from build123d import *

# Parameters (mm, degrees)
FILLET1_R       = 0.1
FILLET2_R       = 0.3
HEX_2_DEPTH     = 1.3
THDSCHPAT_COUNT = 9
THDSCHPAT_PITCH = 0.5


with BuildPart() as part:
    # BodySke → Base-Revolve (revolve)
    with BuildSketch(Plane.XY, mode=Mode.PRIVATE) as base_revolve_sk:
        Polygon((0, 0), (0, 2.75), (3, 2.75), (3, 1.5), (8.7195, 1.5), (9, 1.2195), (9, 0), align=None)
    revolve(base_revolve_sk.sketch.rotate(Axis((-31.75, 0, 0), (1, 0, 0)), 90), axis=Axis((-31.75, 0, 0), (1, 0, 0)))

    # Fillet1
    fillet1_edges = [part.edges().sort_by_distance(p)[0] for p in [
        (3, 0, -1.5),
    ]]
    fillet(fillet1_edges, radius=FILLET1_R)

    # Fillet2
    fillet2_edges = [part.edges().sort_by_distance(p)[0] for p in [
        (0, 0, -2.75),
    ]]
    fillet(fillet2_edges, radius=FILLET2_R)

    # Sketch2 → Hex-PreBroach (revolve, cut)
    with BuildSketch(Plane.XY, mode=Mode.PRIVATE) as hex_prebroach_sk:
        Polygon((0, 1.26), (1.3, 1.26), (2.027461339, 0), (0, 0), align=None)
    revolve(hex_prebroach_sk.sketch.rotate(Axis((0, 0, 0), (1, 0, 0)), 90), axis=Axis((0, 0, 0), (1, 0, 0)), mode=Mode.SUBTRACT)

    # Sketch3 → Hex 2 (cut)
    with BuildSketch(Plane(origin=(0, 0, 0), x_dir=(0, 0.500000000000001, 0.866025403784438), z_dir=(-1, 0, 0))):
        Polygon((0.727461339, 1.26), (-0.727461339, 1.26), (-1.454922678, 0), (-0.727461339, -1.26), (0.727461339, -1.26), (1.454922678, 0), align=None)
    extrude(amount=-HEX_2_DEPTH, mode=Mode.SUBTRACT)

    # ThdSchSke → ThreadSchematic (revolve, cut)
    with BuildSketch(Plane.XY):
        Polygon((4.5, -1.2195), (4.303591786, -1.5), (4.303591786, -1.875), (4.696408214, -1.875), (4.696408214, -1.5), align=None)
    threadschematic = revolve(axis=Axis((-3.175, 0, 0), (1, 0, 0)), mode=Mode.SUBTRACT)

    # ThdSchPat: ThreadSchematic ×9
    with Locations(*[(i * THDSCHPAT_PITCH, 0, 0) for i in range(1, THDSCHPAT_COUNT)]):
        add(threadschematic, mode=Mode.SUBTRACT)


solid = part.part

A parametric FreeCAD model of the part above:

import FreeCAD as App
import Part
import Sketcher
Q = App.Units.Quantity


def edges_at(feature, points):
    """Names of the edges that pass closest to the given points."""
    edges = feature.Shape.Edges
    near = lambda p: min(range(len(edges)), key=lambda i: edges[i].distToShape(Part.Vertex(*p))[0])
    return sorted({f"Edge{near(p) + 1}" for p in points})

doc = App.newDocument("Part")
body = doc.addObject("PartDesign::Body", "Body")

sketch1 = body.newObject("Sketcher::SketchObject", "Sketch")
sketch1.AttachmentSupport = (doc.getObject("XY_Plane"), [""])
sketch1.MapMode = "FlatFace"
sketch1.addGeometry([
    Part.LineSegment(App.Vector(0, 2.75, 0), App.Vector(0, 0, 0)),
    Part.LineSegment(App.Vector(0, 0, 0), App.Vector(9, 0, 0)),
    Part.LineSegment(App.Vector(9, 0, 0), App.Vector(9, 1.2195, 0)),
    Part.LineSegment(App.Vector(9, 1.2195, 0), App.Vector(8.7195, 1.5, 0)),
    Part.LineSegment(App.Vector(8.7195, 1.5, 0), App.Vector(3, 1.5, 0)),
    Part.LineSegment(App.Vector(3, 1.5, 0), App.Vector(3, 2.75, 0)),
    Part.LineSegment(App.Vector(3, 2.75, 0), App.Vector(0, 2.75, 0)),
], False)
sketch1.addConstraint([
    Sketcher.Constraint("Coincident", 0, 2, 1, 1),
    Sketcher.Constraint("Coincident", 1, 2, 2, 1),
    Sketcher.Constraint("Coincident", 2, 2, 3, 1),
    Sketcher.Constraint("Coincident", 3, 2, 4, 1),
    Sketcher.Constraint("Coincident", 4, 2, 5, 1),
    Sketcher.Constraint("Coincident", 5, 2, 6, 1),
    Sketcher.Constraint("Coincident", 6, 2, 0, 1),
    Sketcher.Constraint("Vertical", 0),
    Sketcher.Constraint("Horizontal", 1),
    Sketcher.Constraint("Vertical", 2),
    Sketcher.Constraint("Horizontal", 4),
    Sketcher.Constraint("Vertical", 5),
    Sketcher.Constraint("Horizontal", 6),
    Sketcher.Constraint("Coincident", 0, 2, -1, 1),
    Sketcher.Constraint("DistanceX", 1, 1, 1, 2, Q("9 mm")),
    Sketcher.Constraint("DistanceX", 6, 2, 6, 1, Q("3 mm")),
    Sketcher.Constraint("Angle", 3, Q("135 deg")),
    Sketcher.Constraint("DistanceY", 0, 2, 0, 1, Q("2.75 mm")),
    Sketcher.Constraint("DistanceY", 5, 1, 5, 2, Q("1.25 mm")),
    Sketcher.Constraint("DistanceX", 4, 2, 4, 1, Q("5.7195 mm")),
])
revolution = body.newObject("PartDesign::Revolution", "Revolution")
revolution.Profile = sketch1
revolution.ReferenceAxis = (sketch1, ["H_Axis"])
revolution.Angle = 360
doc.recompute()

fillet = body.newObject("PartDesign::Fillet", "Fillet")
fillet.Base = (revolution, edges_at(revolution, [(3, 0, -1.5)]))
fillet.Radius = 0.1
doc.recompute()

fillet2 = body.newObject("PartDesign::Fillet", "Fillet001")
fillet2.Base = (fillet, edges_at(fillet, [(0, 0, -2.75)]))
fillet2.Radius = 0.3

sketch2 = body.newObject("Sketcher::SketchObject", "Sketch001")
sketch2.AttachmentSupport = (doc.getObject("XY_Plane"), [""])
sketch2.MapMode = "FlatFace"
sketch2.addGeometry([
    Part.LineSegment(App.Vector(1.3, 1.26, 0), App.Vector(0, 1.26, 0)),
    Part.LineSegment(App.Vector(0, 1.26, 0), App.Vector(0, 0, 0)),
    Part.LineSegment(App.Vector(0, 0, 0), App.Vector(2.027461, 0, 0)),
    Part.LineSegment(App.Vector(2.027461, 0, 0), App.Vector(1.3, 1.26, 0)),
], False)
sketch2.addConstraint([
    Sketcher.Constraint("Coincident", 0, 2, 1, 1),
    Sketcher.Constraint("Coincident", 1, 2, 2, 1),
    Sketcher.Constraint("Coincident", 2, 2, 3, 1),
    Sketcher.Constraint("Coincident", 3, 2, 0, 1),
    Sketcher.Constraint("Horizontal", 0),
    Sketcher.Constraint("Vertical", 1),
    Sketcher.Constraint("Horizontal", 2),
    Sketcher.Constraint("Coincident", 1, 2, -1, 1),
    Sketcher.Constraint("Angle", 3, Q("120 deg")),
    Sketcher.Constraint("DistanceX", 0, 2, 0, 1, Q("1.3 mm")),
    Sketcher.Constraint("DistanceY", 1, 2, 1, 1, Q("1.26 mm")),
])
groove = body.newObject("PartDesign::Groove", "Groove")
groove.Profile = sketch2
groove.ReferenceAxis = (sketch2, ["H_Axis"])
groove.Angle = 360

sketch3 = body.newObject("Sketcher::SketchObject", "Sketch002")
sketch3.AttachmentSupport = (doc.getObject("YZ_Plane"), [""])
sketch3.MapMode = "FlatFace"
sketch3.addGeometry([
    Part.LineSegment(App.Vector(1.454923, 0, 0), App.Vector(0.727461, -1.26, 0)),
    Part.LineSegment(App.Vector(0.727461, -1.26, 0), App.Vector(-0.727461, -1.26, 0)),
    Part.LineSegment(App.Vector(-0.727461, -1.26, 0), App.Vector(-1.454923, 0, 0)),
    Part.LineSegment(App.Vector(-1.454923, 0, 0), App.Vector(-0.727461, 1.26, 0)),
    Part.LineSegment(App.Vector(-0.727461, 1.26, 0), App.Vector(0.727461, 1.26, 0)),
    Part.LineSegment(App.Vector(0.727461, 1.26, 0), App.Vector(1.454923, 0, 0)),
], False)
sketch3.addConstraint([
    Sketcher.Constraint("Coincident", 0, 2, 1, 1),
    Sketcher.Constraint("Coincident", 1, 2, 2, 1),
    Sketcher.Constraint("Coincident", 2, 2, 3, 1),
    Sketcher.Constraint("Coincident", 3, 2, 4, 1),
    Sketcher.Constraint("Coincident", 4, 2, 5, 1),
    Sketcher.Constraint("Coincident", 5, 2, 0, 1),
    Sketcher.Constraint("Horizontal", 1),
    Sketcher.Constraint("Horizontal", 4),
    Sketcher.Constraint("Symmetric", 0, 2, 3, 2, -1, 1),
    Sketcher.Constraint("Symmetric", 2, 2, 5, 2, -1, 1),
    Sketcher.Constraint("PointOnObject", 2, 2, -1),
    Sketcher.Constraint("Parallel", 2, 5),
    Sketcher.Constraint("Vertical", 1, 2, 3, 2),
    Sketcher.Constraint("Angle", 0, Q("-120 deg")),
    Sketcher.Constraint("DistanceY", 0, 2, -1, 1, Q("1.26 mm")),
    Sketcher.Constraint("DistanceX", 1, 2, 1, 1, Q("1.454923 mm")),
])
pocket1 = body.newObject("PartDesign::Pocket", "Pocket")
pocket1.Profile = sketch3
pocket1.Length = 1.3
pocket1.Reversed = True

sketch4 = body.newObject("Sketcher::SketchObject", "Sketch003")
sketch4.AttachmentSupport = (doc.getObject("XY_Plane"), [""])
sketch4.MapMode = "FlatFace"
sketch4.addGeometry([
    Part.LineSegment(App.Vector(4.5, -1.2195, 0), App.Vector(4.303592, -1.5, 0)),
    Part.LineSegment(App.Vector(4.303592, -1.5, 0), App.Vector(4.303592, -1.875, 0)),
    Part.LineSegment(App.Vector(4.303592, -1.875, 0), App.Vector(4.696408, -1.875, 0)),
    Part.LineSegment(App.Vector(4.696408, -1.875, 0), App.Vector(4.696408, -1.5, 0)),
    Part.LineSegment(App.Vector(4.696408, -1.5, 0), App.Vector(4.5, -1.2195, 0)),
], False)
sketch4.addConstraint([
    Sketcher.Constraint("Coincident", 0, 2, 1, 1),
    Sketcher.Constraint("Coincident", 1, 2, 2, 1),
    Sketcher.Constraint("Coincident", 2, 2, 3, 1),
    Sketcher.Constraint("Coincident", 3, 2, 4, 1),
    Sketcher.Constraint("Coincident", 4, 2, 0, 1),
    Sketcher.Constraint("Vertical", 1),
    Sketcher.Constraint("Horizontal", 2),
    Sketcher.Constraint("Vertical", 3),
    Sketcher.Constraint("Horizontal", 0, 2, 3, 2),
    Sketcher.Constraint("Equal", 0, 4),
    Sketcher.Constraint("Angle", 0, Q("-125 deg")),
    Sketcher.Constraint("DistanceY", 0, 2, -1, 1, Q("1.5 mm")),
    Sketcher.Constraint("DistanceX", -1, 1, 4, 2, Q("4.5 mm")),
    Sketcher.Constraint("DistanceY", 1, 2, 1, 1, Q("0.375 mm")),
    Sketcher.Constraint("DistanceY", 4, 2, -1, 1, Q("1.2195 mm")),
])
groove2 = body.newObject("PartDesign::Groove", "Groove001")
groove2.Profile = sketch4
groove2.ReferenceAxis = (sketch4, ["H_Axis"])
groove2.Angle = 360
doc.recompute()

linearpattern = body.newObject("PartDesign::LinearPattern", "LinearPattern")
linearpattern.Originals = [groove2]
linearpattern.Direction = (doc.getObject("X_Axis"), [""])
linearpattern.Mode = "offset"
linearpattern.Offset = 0.5
linearpattern.Occurrences = 9
body.Tip = linearpattern

doc.recompute()
